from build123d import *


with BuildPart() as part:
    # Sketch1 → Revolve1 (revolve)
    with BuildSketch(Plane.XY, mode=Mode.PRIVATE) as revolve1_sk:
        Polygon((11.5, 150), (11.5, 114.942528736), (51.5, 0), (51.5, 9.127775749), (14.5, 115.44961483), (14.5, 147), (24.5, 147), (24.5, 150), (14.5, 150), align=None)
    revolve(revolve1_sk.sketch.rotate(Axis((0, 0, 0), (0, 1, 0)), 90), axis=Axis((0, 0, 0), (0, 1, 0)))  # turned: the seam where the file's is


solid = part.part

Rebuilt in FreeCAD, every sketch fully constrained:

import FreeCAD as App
import Part
import Sketcher
from FreeCAD import Vector

doc = App.newDocument("Part")
params = doc.addObject("Spreadsheet::Sheet", "Params")
for row, (alias, value) in enumerate([
    ("sketch1_width", "10 mm"),
    ("sketch1_width2", "13 mm"),
    ("sketch1_height", "3 mm"),
    ("revolution_angle", "360 deg"),
], start=1):
    params.set(f"A{row}", alias)
    params.set(f"B{row}", "=" + value)
    params.setAlias(f"B{row}", alias)

body = doc.addObject("PartDesign::Body", "Body")

sketch1 = doc.addObject("Sketcher::SketchObject", "Sketch")
body.addObject(sketch1)
sketch1.AttachmentSupport = (doc.XY_Plane, [""])
sketch1.MapMode = "FlatFace"
sketch1.addGeometry(Part.LineSegment(Vector(11.5, 150, 0), Vector(11.5, 114.9, 0)), False)
sketch1.addGeometry(Part.LineSegment(Vector(11.5, 114.9, 0), Vector(51.5, 0, 0)), False)
sketch1.addGeometry(Part.LineSegment(Vector(51.5, 0, 0), Vector(51.5, 9.1, 0)), False)
sketch1.addGeometry(Part.LineSegment(Vector(51.5, 9.1, 0), Vector(14.5, 115.4, 0)), False)
sketch1.addGeometry(Part.LineSegment(Vector(14.5, 115.4, 0), Vector(14.5, 147, 0)), False)
sketch1.addGeometry(Part.LineSegment(Vector(14.5, 147, 0), Vector(24.5, 147, 0)), False)
sketch1.addGeometry(Part.LineSegment(Vector(24.5, 147, 0), Vector(24.5, 150, 0)), False)
sketch1.addGeometry(Part.LineSegment(Vector(24.5, 150, 0), Vector(11.5, 150, 0)), False)
sketch1.addConstraint(Sketcher.Constraint("Coincident", 0, 2, 1, 1))
sketch1.addConstraint(Sketcher.Constraint("Coincident", 1, 2, 2, 1))
sketch1.addConstraint(Sketcher.Constraint("Coincident", 2, 2, 3, 1))
sketch1.addConstraint(Sketcher.Constraint("Coincident", 3, 2, 4, 1))
sketch1.addConstraint(Sketcher.Constraint("Coincident", 4, 2, 5, 1))
sketch1.addConstraint(Sketcher.Constraint("Coincident", 5, 2, 6, 1))
sketch1.addConstraint(Sketcher.Constraint("Coincident", 6, 2, 7, 1))
sketch1.addConstraint(Sketcher.Constraint("Coincident", 7, 2, 0, 1))
sketch1.addConstraint(Sketcher.Constraint("Vertical", 0))
sketch1.addConstraint(Sketcher.Constraint("Vertical", 2))
sketch1.addConstraint(Sketcher.Constraint("Vertical", 4))
sketch1.addConstraint(Sketcher.Constraint("Horizontal", 5))
sketch1.addConstraint(Sketcher.Constraint("Vertical", 6))
sketch1.addConstraint(Sketcher.Constraint("Horizontal", 7))
sketch1.addConstraint(Sketcher.Constraint("PointOnObject", 1, 2, -1))
sketch1.addConstraint(Sketcher.Constraint("Parallel", 1, 3))
sketch1.addConstraint(Sketcher.Constraint("DistanceX", 5, 1, 5, 2, 10.0))
sketch1.addConstraint(Sketcher.Constraint("DistanceX", 7, 2, 7, 1, 13.0))
sketch1.addConstraint(Sketcher.Constraint("DistanceY", 6, 1, 6, 2, 3.0))
sketch1.addConstraint(Sketcher.Constraint("DistanceY", -1, 1, 4, 2, 147.0))
sketch1.addConstraint(Sketcher.Constraint("DistanceX", 0, 2, 1, 2, 40.0))
sketch1.addConstraint(Sketcher.Constraint("DistanceX", -1, 1, 0, 2, 11.5))
sketch1.addConstraint(Sketcher.Constraint("Distance", 3, 112.575901))
sketch1.addConstraint(Sketcher.Constraint("DistanceY", 2, 1, 2, 2, 9.127776))
sketch1.setExpression("Constraints[16]", "Params.sketch1_width")
sketch1.setExpression("Constraints[17]", "Params.sketch1_width2")
sketch1.setExpression("Constraints[18]", "Params.sketch1_height")
revolution = doc.addObject("PartDesign::Revolution", "Revolution")
body.addObject(revolution)
revolution.Profile = sketch1
revolution.ReferenceAxis = (sketch1, ["V_Axis"])
revolution.setExpression("Angle", "Params.revolution_angle")

doc.recompute()
